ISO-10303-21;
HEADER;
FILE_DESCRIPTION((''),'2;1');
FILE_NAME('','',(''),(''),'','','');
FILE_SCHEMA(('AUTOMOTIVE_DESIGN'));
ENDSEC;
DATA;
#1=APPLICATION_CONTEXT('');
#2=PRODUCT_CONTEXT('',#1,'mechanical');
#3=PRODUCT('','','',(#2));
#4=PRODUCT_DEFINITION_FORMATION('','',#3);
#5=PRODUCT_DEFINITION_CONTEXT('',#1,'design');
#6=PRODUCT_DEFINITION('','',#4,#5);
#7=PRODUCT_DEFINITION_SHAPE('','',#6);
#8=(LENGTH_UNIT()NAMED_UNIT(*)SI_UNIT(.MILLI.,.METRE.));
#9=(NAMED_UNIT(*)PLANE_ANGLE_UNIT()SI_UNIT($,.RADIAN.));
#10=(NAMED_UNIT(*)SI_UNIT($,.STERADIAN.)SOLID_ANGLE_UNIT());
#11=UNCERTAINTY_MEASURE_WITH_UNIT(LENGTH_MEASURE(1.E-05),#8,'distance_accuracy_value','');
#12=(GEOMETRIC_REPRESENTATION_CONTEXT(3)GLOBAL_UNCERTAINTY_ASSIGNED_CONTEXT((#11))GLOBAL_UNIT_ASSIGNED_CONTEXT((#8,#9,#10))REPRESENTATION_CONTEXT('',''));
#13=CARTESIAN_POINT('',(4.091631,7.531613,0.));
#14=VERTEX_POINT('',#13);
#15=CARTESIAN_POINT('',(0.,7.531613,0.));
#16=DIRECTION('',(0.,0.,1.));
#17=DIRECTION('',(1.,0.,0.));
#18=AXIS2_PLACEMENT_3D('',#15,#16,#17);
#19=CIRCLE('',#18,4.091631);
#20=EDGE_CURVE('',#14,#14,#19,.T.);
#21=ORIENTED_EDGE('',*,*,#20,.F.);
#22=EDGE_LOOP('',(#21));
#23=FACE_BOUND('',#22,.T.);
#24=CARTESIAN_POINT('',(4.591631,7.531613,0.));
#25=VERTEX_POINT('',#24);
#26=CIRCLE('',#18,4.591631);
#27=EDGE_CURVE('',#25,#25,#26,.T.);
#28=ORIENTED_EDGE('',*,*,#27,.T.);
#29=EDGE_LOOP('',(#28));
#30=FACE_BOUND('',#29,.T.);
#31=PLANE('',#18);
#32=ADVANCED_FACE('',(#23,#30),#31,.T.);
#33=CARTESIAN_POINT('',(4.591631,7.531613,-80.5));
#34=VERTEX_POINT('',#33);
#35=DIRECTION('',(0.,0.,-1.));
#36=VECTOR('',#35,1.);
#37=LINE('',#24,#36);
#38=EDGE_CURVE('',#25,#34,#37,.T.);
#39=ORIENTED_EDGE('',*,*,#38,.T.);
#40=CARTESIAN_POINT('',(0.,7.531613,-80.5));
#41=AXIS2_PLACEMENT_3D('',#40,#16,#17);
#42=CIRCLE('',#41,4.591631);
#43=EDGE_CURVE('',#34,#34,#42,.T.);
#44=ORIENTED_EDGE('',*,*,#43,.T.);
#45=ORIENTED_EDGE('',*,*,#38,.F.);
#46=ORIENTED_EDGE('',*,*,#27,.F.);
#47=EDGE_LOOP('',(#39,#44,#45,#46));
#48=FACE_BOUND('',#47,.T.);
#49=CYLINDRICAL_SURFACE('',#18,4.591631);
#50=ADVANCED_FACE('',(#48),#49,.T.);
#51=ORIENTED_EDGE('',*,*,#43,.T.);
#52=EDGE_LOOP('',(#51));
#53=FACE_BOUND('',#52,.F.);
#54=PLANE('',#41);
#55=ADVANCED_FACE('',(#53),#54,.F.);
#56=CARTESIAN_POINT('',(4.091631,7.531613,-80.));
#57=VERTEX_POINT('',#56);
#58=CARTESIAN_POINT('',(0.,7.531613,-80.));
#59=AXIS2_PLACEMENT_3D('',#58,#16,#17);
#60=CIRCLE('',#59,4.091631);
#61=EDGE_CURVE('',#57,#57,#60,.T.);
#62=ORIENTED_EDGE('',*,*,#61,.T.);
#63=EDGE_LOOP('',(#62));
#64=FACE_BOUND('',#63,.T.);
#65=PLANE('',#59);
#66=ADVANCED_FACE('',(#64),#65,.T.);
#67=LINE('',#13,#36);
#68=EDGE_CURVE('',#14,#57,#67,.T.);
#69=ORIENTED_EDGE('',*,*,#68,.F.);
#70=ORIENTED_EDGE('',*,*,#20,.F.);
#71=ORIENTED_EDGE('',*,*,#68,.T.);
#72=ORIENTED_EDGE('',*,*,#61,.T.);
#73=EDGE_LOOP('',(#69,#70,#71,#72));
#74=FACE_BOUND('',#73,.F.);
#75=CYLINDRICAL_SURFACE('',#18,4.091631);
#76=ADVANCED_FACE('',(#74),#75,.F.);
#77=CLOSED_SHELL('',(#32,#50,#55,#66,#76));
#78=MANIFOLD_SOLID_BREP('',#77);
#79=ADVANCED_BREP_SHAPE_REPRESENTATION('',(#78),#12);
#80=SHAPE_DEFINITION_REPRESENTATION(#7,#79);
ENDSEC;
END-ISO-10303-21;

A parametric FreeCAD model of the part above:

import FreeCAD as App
import Part
import Sketcher

V = App.Vector


def faces_at(feature, points):
    """Names of the faces that lie closest to the given points."""
    faces = feature.Shape.Faces
    near = lambda p: min(range(len(faces)), key=lambda i: faces[i].distToShape(Part.Vertex(*p))[0])
    return sorted({f"Face{near(p) + 1}" for p in points})

doc = App.newDocument("Part")
params = doc.addObject("Spreadsheet::Sheet", "Params")
for row, (alias, value) in enumerate([
    ("pad1_length", "80 mm"),
    ("thickness_wall", "0.5 mm"),
], start=1):
    params.set(f"A{row}", alias)
    params.set(f"B{row}", "=" + value)
    params.setAlias(f"B{row}", alias)

body = doc.addObject("PartDesign::Body", "Body")

# Sketch on XY plane
sketch1 = body.newObject("Sketcher::SketchObject", "Sketch")
sketch1.AttachmentSupport = (doc.getObject("XY_Plane"), [""])
sketch1.MapMode = "FlatFace"
sketch1.addGeometry(Part.Circle(V(0, 7.5, 0), V(0, 0, 1), 4.1), False)
sketch1.addConstraint([
    Sketcher.Constraint("PointOnObject", 0, 3, -2),
    Sketcher.Constraint("Diameter", 0, 8.183263),
    Sketcher.Constraint("DistanceY", -1, 1, 0, 3, 7.531613),
])
pad1 = body.newObject("PartDesign::Pad", "Pad")
pad1.Profile = sketch1
pad1.setExpression("Length", "Params.pad1_length")
pad1.Reversed = True
doc.recompute()

thickness = body.newObject("PartDesign::Thickness", "Thickness")
thickness.Base = (pad1, faces_at(pad1, [(0, 7.532, 0)]))
thickness.setExpression("Value", "Params.thickness_wall")
thickness.Reversed = False
thickness.Join = "Intersection"

doc.recompute()
